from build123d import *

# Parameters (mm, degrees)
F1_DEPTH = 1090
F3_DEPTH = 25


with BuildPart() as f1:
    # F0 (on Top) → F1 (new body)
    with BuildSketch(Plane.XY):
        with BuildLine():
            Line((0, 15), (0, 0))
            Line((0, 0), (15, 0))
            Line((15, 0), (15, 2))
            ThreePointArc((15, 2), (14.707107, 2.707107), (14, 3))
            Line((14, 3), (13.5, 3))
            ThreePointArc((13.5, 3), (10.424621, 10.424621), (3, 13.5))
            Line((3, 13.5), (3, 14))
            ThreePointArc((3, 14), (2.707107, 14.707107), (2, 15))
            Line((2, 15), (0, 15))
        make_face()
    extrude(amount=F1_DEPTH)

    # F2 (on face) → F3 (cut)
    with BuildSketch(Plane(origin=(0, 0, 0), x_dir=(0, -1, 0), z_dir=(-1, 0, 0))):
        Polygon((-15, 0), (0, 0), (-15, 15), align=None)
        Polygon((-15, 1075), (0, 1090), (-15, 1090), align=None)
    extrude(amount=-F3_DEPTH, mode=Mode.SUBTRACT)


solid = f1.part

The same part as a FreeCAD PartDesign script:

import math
import FreeCAD as App
import Part
import Sketcher


def add_polygon(sketch, points):
    """Adds a closed chain of lines whose ends are joined by coincident constraints."""
    first, n = sketch.GeometryCount, len(points)
    for a, b in zip(points, points[1:] + points[:1]):
        sketch.addGeometry(Part.LineSegment(App.Vector(*a, 0), App.Vector(*b, 0)), False)
    for i in range(n):
        sketch.addConstraint(Sketcher.Constraint("Coincident", first + i, 2, first + (i + 1) % n, 1))

doc = App.newDocument("Part")
body = doc.addObject("PartDesign::Body", "Body")

# Sketch on XY plane
sketch1 = doc.addObject("Sketcher::SketchObject", "Sketch")
body.addObject(sketch1)
sketch1.AttachmentSupport = (doc.XY_Plane, [""])
sketch1.MapMode = "FlatFace"
sketch1.addGeometry(Part.LineSegment(App.Vector(0, 15, 0), App.Vector(0, 0, 0)), False)
sketch1.addGeometry(Part.LineSegment(App.Vector(0, 0, 0), App.Vector(15, 0, 0)), False)
sketch1.addGeometry(Part.LineSegment(App.Vector(15, 0, 0), App.Vector(15, 2, 0)), False)
sketch1.addGeometry(Part.ArcOfCircle(Part.Circle(App.Vector(14.000001, 2.000001, 0), App.Vector(0, 0, 1), 0.999999), math.radians(-0.000043), math.radians(90.000043)), False)
sketch1.addGeometry(Part.LineSegment(App.Vector(14, 3, 0), App.Vector(13.5, 3, 0)), False)
sketch1.addGeometry(Part.ArcOfCircle(Part.Circle(App.Vector(2.999999, 2.999999, 0), App.Vector(0, 0, 1), 10.500001), math.radians(0.000004), math.radians(89.999996)), False)
sketch1.addGeometry(Part.LineSegment(App.Vector(3, 13.5, 0), App.Vector(3, 14, 0)), False)
sketch1.addGeometry(Part.ArcOfCircle(Part.Circle(App.Vector(2.000001, 14.000001, 0), App.Vector(0, 0, 1), 0.999999), math.radians(-0.000043), math.radians(90.000043)), False)
sketch1.addGeometry(Part.LineSegment(App.Vector(2, 15, 0), App.Vector(0, 15, 0)), False)
sketch1.addConstraint(Sketcher.Constraint("Coincident", 0, 2, 1, 1))
sketch1.addConstraint(Sketcher.Constraint("Coincident", 1, 2, 2, 1))
sketch1.addConstraint(Sketcher.Constraint("Tangent", 2, 2, 3, 1))
sketch1.addConstraint(Sketcher.Constraint("Tangent", 3, 2, 4, 1))
sketch1.addConstraint(Sketcher.Constraint("Coincident", 4, 2, 5, 1))
sketch1.addConstraint(Sketcher.Constraint("Coincident", 5, 2, 6, 1))
sketch1.addConstraint(Sketcher.Constraint("Tangent", 6, 2, 7, 1))
sketch1.addConstraint(Sketcher.Constraint("Tangent", 7, 2, 8, 1))
sketch1.addConstraint(Sketcher.Constraint("Coincident", 8, 2, 0, 1))
sketch1.addConstraint(Sketcher.Constraint("Vertical", 0))
sketch1.addConstraint(Sketcher.Constraint("Horizontal", 1))
sketch1.addConstraint(Sketcher.Constraint("Vertical", 2))
sketch1.addConstraint(Sketcher.Constraint("Horizontal", 4))
sketch1.addConstraint(Sketcher.Constraint("Vertical", 6))
sketch1.addConstraint(Sketcher.Constraint("Horizontal", 8))
sketch1.addConstraint(Sketcher.Constraint("Coincident", 0, 2, -1, 1))
sketch1.addConstraint(Sketcher.Constraint("Equal", 3, 7))
sketch1.addConstraint(Sketcher.Constraint("Horizontal", 5, 3, 3, 2))
sketch1.addConstraint(Sketcher.Constraint("Equal", 1, 0))
sketch1.addConstraint(Sketcher.Constraint("Equal", 8, 2))
sketch1.addConstraint(Sketcher.Constraint("Equal", 4, 6))
sketch1.addConstraint(Sketcher.Constraint("Radius", 3, 0.999999))
sketch1.addConstraint(Sketcher.Constraint("Radius", 5, 10.500001))
sketch1.addConstraint(Sketcher.Constraint("DistanceX", 1, 1, 1, 2, 15.0))
sketch1.addConstraint(Sketcher.Constraint("DistanceX", 8, 2, 8, 1, 2.0))
pad1 = doc.addObject("PartDesign::Pad", "Pad")
body.addObject(pad1)
pad1.Profile = sketch1
pad1.Length = 1090

# Sketch on YZ plane
sketch2 = doc.addObject("Sketcher::SketchObject", "Sketch001")
body.addObject(sketch2)
sketch2.AttachmentSupport = (doc.YZ_Plane, [""])
sketch2.MapMode = "FlatFace"
add_polygon(sketch2, [(15, 0), (0, 0), (15, 15)])  # lines 0-2
add_polygon(sketch2, [(15, 1075), (0, 1090), (15, 1090)])  # lines 3-5
sketch2.addConstraint(Sketcher.Constraint("Horizontal", 0))
sketch2.addConstraint(Sketcher.Constraint("Vertical", 2))
sketch2.addConstraint(Sketcher.Constraint("Horizontal", 4))
sketch2.addConstraint(Sketcher.Constraint("Vertical", 5))
sketch2.addConstraint(Sketcher.Constraint("Coincident", 0, 2, -1, 1))
sketch2.addConstraint(Sketcher.Constraint("PointOnObject", 3, 2, -2))
sketch2.addConstraint(Sketcher.Constraint("Perpendicular", 1, 3))
sketch2.addConstraint(Sketcher.Constraint("Vertical", 2, 2, 4, 2))
sketch2.addConstraint(Sketcher.Constraint("Equal", 4, 2))
sketch2.addConstraint(Sketcher.Constraint("DistanceX", 0, 2, 0, 1, 15.0))
sketch2.addConstraint(Sketcher.Constraint("DistanceY", -1, 1, 3, 2, 1090.0))
pocket1 = doc.addObject("PartDesign::Pocket", "Pocket")
body.addObject(pocket1)
pocket1.Profile = sketch2
pocket1.Length = 25
pocket1.Reversed = True

doc.recompute()
